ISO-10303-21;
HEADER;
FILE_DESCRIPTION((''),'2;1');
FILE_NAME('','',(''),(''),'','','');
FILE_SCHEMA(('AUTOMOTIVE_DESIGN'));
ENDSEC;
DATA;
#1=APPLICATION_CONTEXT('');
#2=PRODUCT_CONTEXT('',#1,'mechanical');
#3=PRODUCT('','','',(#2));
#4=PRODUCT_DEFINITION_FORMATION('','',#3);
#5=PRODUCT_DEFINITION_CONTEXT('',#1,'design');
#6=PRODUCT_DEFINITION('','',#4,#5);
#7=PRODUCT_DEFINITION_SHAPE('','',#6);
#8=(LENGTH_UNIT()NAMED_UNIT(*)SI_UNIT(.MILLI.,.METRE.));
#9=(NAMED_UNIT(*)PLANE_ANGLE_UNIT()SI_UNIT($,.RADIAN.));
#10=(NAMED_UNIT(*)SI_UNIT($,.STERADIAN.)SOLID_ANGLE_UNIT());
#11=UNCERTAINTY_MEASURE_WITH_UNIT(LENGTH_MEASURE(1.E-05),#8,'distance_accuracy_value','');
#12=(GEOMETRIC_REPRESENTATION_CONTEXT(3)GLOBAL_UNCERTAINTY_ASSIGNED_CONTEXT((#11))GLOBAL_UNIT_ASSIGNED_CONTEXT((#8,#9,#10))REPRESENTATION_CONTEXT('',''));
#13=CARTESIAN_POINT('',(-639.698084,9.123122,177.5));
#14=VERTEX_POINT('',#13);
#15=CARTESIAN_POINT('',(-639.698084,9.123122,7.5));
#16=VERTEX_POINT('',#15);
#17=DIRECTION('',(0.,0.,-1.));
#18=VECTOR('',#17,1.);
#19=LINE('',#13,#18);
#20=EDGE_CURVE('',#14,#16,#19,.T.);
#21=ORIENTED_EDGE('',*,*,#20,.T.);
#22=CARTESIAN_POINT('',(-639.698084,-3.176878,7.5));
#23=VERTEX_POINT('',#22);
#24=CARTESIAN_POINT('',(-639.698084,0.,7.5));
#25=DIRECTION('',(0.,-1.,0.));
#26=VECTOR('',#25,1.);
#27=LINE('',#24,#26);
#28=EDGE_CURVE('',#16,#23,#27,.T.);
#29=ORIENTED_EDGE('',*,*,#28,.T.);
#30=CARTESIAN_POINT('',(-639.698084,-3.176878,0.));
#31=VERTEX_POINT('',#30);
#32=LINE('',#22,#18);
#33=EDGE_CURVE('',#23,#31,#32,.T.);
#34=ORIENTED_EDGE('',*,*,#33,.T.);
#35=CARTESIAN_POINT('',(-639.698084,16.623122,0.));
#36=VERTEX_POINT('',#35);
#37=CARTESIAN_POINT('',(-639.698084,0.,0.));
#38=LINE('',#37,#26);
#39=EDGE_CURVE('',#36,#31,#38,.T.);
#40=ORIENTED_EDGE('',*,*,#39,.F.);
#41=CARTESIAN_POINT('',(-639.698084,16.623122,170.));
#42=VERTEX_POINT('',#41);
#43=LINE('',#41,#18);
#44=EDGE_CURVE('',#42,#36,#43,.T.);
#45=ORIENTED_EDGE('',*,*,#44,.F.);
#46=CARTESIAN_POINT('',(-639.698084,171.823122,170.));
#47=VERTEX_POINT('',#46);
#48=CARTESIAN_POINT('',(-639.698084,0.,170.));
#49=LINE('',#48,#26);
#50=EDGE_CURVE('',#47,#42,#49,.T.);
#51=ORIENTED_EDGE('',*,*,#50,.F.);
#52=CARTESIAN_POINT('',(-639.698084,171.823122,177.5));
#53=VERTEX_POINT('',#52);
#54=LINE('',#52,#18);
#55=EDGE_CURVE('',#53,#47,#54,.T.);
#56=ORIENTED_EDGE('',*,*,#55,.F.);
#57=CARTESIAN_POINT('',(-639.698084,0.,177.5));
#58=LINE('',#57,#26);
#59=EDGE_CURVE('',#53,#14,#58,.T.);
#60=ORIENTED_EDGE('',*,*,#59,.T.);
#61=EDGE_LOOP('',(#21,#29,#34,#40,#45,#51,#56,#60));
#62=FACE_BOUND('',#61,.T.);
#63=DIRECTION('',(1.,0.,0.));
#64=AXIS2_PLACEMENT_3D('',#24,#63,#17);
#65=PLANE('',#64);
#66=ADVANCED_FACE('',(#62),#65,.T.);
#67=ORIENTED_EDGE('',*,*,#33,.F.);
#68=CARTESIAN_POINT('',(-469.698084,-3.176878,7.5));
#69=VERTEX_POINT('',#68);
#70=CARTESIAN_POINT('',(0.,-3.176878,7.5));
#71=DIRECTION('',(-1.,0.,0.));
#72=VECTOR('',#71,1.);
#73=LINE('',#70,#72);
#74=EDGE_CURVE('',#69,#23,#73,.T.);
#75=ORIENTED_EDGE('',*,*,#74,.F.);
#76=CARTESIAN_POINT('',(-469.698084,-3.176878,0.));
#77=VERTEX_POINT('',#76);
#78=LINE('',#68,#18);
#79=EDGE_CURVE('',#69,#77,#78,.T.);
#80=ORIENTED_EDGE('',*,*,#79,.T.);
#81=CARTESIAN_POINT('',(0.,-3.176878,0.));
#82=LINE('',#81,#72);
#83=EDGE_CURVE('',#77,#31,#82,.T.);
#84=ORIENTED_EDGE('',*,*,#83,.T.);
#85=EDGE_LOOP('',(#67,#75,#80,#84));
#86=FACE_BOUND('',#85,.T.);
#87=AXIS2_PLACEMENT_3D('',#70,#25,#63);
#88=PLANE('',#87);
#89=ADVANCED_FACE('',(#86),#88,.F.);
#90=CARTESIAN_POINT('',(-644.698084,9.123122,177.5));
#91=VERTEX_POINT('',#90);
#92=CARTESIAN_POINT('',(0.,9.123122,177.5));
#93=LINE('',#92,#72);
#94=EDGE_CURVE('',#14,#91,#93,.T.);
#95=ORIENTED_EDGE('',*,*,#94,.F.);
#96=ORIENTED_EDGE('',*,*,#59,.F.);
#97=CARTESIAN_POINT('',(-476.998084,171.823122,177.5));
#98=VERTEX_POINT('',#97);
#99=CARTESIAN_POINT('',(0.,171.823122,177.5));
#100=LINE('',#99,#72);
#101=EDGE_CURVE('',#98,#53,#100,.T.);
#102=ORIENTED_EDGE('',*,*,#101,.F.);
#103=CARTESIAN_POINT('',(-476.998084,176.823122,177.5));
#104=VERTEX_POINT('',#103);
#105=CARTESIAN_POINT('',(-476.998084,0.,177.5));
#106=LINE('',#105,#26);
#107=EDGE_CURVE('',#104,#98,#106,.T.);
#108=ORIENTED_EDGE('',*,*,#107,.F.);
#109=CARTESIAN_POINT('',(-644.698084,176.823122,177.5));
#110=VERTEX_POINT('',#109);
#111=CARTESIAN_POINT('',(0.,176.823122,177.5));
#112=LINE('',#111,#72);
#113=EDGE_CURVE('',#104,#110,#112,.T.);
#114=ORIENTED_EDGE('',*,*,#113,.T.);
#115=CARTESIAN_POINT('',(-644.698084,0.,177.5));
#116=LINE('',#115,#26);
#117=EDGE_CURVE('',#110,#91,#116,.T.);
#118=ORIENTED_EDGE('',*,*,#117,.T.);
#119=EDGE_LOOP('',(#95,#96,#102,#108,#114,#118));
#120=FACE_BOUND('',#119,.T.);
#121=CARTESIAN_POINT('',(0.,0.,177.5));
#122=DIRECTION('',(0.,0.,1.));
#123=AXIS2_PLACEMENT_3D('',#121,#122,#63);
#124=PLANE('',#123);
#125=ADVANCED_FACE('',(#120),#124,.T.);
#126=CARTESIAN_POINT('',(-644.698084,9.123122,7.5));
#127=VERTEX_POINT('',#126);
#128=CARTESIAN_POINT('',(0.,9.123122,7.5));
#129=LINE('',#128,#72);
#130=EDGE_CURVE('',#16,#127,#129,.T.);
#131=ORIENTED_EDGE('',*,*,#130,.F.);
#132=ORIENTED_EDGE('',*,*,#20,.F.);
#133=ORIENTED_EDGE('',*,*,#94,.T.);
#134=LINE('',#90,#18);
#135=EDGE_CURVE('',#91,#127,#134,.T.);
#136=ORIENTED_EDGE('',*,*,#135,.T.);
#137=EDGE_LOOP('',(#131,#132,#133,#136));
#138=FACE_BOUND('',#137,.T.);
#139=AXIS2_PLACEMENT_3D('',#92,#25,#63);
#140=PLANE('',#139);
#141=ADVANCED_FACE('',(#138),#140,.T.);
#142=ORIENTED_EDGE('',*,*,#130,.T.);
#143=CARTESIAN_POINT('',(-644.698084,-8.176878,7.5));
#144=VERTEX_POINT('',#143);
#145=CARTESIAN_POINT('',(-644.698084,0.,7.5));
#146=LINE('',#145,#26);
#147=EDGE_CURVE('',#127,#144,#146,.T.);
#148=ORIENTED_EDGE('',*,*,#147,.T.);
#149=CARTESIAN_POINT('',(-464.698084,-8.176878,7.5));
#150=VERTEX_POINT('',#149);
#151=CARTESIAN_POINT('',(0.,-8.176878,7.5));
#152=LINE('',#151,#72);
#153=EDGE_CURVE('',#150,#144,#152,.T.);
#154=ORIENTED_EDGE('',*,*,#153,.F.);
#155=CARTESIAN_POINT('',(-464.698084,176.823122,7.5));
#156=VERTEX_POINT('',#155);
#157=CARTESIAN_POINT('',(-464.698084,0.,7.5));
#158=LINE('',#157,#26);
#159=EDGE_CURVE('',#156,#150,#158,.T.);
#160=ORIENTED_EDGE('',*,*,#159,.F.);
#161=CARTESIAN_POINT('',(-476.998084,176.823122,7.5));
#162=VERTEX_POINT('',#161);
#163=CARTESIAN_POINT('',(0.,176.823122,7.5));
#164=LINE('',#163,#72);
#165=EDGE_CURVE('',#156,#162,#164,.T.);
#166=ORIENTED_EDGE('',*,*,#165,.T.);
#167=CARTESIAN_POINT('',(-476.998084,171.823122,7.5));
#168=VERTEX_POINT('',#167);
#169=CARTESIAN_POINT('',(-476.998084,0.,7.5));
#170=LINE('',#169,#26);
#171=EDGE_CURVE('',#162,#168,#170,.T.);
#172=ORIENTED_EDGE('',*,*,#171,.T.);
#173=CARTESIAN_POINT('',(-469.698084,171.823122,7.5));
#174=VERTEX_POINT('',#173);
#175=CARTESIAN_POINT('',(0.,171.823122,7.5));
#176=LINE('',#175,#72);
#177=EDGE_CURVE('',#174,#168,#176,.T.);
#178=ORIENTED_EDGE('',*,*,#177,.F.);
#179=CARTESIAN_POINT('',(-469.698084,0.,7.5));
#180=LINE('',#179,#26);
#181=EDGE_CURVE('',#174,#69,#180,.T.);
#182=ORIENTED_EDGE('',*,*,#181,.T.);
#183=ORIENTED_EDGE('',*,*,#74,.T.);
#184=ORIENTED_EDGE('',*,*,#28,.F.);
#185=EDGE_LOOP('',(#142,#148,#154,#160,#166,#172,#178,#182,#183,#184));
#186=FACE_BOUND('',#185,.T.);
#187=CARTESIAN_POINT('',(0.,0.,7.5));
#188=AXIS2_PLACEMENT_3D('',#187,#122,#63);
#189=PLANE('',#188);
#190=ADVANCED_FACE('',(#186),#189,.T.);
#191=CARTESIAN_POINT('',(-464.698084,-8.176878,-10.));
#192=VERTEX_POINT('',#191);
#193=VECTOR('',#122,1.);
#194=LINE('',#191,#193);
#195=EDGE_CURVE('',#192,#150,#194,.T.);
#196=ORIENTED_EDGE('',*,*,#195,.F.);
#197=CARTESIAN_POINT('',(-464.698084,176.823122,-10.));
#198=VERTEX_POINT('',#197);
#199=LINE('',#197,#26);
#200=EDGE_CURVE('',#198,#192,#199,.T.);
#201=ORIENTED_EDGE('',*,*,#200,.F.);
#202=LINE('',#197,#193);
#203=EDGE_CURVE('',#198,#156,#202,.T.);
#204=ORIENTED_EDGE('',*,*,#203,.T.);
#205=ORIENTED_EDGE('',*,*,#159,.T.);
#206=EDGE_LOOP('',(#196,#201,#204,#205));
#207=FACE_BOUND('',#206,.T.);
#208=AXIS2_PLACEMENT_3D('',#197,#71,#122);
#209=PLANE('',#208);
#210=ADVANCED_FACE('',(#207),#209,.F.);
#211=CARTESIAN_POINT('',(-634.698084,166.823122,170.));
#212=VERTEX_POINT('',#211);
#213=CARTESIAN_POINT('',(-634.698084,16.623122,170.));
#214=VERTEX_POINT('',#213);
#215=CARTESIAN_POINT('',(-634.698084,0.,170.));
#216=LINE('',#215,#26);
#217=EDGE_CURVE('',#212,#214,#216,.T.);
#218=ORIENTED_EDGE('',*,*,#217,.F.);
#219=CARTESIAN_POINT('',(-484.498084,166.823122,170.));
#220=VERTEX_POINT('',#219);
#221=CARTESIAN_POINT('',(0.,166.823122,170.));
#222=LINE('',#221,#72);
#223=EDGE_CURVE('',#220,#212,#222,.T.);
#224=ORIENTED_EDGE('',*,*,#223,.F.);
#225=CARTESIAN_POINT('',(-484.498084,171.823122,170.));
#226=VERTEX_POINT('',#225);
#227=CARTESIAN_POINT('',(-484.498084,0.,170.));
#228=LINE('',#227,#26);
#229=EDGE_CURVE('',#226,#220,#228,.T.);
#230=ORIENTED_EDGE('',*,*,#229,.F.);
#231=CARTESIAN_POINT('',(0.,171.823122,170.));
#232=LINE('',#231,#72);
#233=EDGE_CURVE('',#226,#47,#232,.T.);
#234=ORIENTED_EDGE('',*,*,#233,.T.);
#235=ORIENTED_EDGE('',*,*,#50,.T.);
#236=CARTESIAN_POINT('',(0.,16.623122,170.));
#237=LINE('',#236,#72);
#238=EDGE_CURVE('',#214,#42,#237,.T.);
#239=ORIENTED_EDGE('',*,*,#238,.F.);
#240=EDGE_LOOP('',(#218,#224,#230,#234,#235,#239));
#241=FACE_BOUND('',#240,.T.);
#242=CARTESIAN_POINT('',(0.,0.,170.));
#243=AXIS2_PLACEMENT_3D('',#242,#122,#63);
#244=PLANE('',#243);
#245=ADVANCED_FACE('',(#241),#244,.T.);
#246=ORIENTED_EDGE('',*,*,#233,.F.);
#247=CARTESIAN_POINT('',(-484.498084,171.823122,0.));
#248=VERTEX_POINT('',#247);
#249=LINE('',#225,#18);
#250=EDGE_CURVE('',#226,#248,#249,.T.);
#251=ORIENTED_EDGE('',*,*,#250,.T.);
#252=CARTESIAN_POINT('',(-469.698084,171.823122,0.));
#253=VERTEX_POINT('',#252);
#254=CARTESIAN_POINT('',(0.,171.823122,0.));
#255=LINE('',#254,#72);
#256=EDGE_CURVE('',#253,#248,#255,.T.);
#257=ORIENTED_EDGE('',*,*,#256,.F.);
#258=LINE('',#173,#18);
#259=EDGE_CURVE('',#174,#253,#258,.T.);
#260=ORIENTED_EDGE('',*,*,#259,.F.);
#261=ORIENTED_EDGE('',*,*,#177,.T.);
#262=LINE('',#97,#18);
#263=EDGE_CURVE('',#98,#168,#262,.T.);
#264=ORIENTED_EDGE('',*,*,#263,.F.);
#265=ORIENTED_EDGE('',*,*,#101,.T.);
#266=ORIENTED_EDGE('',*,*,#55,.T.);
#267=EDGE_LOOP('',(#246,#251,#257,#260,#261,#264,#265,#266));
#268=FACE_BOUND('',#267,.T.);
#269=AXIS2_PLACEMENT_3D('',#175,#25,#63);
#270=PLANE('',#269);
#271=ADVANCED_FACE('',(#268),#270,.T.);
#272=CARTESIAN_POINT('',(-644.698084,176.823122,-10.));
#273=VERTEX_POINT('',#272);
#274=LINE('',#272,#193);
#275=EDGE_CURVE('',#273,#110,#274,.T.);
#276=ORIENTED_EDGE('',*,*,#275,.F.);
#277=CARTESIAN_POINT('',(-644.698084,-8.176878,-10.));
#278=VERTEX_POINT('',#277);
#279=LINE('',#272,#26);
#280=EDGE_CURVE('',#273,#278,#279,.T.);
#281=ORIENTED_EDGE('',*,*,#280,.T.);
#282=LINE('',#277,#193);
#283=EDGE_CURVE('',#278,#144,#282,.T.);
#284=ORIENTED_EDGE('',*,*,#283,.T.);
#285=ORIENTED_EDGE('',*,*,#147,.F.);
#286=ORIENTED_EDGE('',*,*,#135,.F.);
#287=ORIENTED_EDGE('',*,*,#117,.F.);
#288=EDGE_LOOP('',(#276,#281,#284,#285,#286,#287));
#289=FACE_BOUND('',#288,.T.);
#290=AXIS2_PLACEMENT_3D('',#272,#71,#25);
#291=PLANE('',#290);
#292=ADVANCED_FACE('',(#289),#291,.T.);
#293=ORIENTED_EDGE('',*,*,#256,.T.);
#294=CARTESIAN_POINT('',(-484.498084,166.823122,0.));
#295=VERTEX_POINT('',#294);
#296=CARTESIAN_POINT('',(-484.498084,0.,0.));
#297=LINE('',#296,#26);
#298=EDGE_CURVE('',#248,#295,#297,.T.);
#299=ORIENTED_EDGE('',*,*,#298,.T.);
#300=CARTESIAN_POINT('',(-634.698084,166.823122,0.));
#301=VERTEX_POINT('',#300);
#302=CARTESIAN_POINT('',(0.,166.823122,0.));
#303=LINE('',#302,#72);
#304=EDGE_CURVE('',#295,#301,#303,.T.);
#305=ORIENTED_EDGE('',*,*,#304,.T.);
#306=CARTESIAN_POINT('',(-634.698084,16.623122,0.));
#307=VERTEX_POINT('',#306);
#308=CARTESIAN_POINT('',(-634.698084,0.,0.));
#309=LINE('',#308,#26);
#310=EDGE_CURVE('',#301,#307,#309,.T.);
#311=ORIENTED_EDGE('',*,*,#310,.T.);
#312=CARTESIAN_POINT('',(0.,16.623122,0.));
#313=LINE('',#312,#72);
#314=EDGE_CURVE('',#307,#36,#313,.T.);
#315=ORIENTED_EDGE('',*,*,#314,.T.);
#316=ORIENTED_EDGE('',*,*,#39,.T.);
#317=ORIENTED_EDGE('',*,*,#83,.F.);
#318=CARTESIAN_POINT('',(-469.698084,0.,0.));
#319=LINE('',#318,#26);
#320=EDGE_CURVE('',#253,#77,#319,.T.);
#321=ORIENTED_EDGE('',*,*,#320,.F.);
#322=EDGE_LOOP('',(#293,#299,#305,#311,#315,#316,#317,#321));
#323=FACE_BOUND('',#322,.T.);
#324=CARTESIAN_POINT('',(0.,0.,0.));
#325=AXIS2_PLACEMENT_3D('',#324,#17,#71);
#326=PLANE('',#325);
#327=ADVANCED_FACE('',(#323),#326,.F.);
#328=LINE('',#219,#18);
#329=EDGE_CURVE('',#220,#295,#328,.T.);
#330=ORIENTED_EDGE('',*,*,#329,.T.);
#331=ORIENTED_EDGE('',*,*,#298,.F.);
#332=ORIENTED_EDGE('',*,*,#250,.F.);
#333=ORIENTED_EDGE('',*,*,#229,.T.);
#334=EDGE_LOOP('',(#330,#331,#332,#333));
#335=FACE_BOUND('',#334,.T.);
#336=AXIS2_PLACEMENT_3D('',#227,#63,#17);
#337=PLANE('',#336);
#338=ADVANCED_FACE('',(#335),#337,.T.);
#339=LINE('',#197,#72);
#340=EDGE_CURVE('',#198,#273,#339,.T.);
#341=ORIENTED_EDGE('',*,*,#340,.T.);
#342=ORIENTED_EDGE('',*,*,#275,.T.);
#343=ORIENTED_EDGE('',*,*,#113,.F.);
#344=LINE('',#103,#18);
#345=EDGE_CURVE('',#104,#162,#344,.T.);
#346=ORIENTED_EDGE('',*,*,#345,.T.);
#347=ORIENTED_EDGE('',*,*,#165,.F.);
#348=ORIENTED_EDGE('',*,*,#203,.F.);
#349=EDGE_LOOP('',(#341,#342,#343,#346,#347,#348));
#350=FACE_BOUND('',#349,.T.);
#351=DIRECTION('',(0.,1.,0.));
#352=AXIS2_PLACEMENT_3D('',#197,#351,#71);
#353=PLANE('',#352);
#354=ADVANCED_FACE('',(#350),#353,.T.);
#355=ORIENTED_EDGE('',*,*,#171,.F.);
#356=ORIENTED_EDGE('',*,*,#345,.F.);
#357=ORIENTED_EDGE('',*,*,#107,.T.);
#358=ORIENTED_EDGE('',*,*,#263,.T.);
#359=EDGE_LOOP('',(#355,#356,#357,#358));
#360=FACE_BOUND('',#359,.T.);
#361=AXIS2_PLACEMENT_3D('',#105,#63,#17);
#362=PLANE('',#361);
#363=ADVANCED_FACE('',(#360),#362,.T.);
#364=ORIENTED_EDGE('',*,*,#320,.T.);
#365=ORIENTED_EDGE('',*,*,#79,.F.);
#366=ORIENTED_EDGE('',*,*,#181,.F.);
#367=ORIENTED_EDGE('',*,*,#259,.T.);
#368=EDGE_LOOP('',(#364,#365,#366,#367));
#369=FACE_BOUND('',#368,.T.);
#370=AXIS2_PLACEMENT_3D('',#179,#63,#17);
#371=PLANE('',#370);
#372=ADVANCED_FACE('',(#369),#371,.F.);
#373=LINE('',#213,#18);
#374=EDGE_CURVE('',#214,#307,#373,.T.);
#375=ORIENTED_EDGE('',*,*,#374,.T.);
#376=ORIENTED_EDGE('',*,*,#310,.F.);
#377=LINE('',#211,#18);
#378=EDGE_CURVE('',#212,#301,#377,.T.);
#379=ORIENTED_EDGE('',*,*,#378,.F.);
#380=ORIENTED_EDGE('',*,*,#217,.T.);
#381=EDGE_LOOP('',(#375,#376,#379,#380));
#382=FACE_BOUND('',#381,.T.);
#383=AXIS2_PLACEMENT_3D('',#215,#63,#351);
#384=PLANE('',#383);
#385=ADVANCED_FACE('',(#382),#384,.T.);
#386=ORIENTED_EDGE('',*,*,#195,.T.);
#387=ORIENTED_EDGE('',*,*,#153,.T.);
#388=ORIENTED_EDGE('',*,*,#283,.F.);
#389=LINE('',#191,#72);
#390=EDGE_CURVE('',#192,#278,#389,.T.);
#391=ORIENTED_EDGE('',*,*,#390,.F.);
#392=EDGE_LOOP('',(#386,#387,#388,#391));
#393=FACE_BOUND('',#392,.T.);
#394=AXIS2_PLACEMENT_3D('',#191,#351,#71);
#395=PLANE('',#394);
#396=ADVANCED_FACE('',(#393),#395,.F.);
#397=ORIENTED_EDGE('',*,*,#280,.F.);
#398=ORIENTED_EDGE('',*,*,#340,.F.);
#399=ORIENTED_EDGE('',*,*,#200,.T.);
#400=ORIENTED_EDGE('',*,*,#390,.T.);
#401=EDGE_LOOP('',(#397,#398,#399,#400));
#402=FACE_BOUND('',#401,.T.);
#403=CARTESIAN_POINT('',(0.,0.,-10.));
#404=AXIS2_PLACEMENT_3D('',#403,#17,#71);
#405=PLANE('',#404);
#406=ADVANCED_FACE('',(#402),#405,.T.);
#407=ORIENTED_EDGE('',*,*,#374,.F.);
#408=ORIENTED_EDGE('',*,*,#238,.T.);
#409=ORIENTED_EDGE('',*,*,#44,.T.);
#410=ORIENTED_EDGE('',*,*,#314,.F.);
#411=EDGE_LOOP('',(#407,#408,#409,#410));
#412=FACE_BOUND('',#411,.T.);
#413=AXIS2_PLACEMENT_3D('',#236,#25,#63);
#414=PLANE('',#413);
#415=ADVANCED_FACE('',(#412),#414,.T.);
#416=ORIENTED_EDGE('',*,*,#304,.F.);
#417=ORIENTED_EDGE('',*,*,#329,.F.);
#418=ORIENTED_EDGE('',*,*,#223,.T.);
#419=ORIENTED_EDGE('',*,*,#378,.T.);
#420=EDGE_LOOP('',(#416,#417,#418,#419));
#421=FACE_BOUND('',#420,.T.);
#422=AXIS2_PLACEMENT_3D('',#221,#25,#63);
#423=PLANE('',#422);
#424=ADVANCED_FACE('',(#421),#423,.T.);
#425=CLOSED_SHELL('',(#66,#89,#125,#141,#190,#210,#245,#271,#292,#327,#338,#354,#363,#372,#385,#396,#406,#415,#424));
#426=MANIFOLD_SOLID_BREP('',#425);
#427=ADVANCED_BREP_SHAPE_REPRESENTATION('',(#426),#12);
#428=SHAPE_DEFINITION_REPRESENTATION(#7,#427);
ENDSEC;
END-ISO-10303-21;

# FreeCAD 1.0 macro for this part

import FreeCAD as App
import Part
import Sketcher

V = App.Vector


def add_polygon(sketch, points):
    """Adds a closed chain of lines whose ends are joined by coincident constraints."""
    first, n = sketch.GeometryCount, len(points)
    for a, b in zip(points, points[1:] + points[:1]):
        sketch.addGeometry(Part.LineSegment(App.Vector(*a, 0), App.Vector(*b, 0)), False)
    for i in range(n):
        sketch.addConstraint(Sketcher.Constraint("Coincident", first + i, 2, first + (i + 1) % n, 1))

doc = App.newDocument("Part")
body = doc.addObject("PartDesign::Body", "Body")

# Sketch on XY plane
sketch1 = body.newObject("Sketcher::SketchObject", "Sketch")
sketch1.AttachmentSupport = (doc.getObject("XY_Plane"), [""])
sketch1.MapMode = "FlatFace"
add_polygon(sketch1, [(-644.698084, 176.823122), (-644.698084, -8.176878), (-464.698084, -8.176878), (-464.698084, 176.823122)])  # lines 0-3
sketch1.addConstraint([
    Sketcher.Constraint("Vertical", 0),
    Sketcher.Constraint("Horizontal", 1),
    Sketcher.Constraint("Vertical", 2),
    Sketcher.Constraint("Horizontal", 3),
    Sketcher.Constraint("DistanceX", 1, 1, 1, 2, 180.0),
    Sketcher.Constraint("DistanceY", 0, 2, 0, 1, 185.0),
    Sketcher.Constraint("DistanceY", 0, 2, -1, 1, 8.176878),
    Sketcher.Constraint("DistanceX", 0, 2, -1, 1, 644.698084),
])
pad1 = body.newObject("PartDesign::Pad", "Pad")
pad1.Profile = sketch1
pad1.Length = 10
pad1.Reversed = True

# Sketch on XY plane
sketch2 = body.newObject("Sketcher::SketchObject", "Sketch001")
sketch2.AttachmentSupport = (doc.getObject("XY_Plane"), [""])
sketch2.MapMode = "FlatFace"
add_polygon(sketch2, [(-464.698084, 176.823122), (-476.998084, 176.823122), (-476.998084, 171.823122), (-469.698084, 171.823122), (-469.698084, -3.176878), (-639.698084, -3.176878), (-639.698084, 9.123122), (-644.698084, 9.123122), (-644.698084, -8.176878), (-464.698084, -8.176878)])  # lines 0-9
sketch2.addConstraint([
    Sketcher.Constraint("Horizontal", 0),
    Sketcher.Constraint("Vertical", 1),
    Sketcher.Constraint("Horizontal", 2),
    Sketcher.Constraint("Vertical", 3),
    Sketcher.Constraint("Horizontal", 4),
    Sketcher.Constraint("Vertical", 5),
    Sketcher.Constraint("Horizontal", 6),
    Sketcher.Constraint("Vertical", 7),
    Sketcher.Constraint("Horizontal", 8),
    Sketcher.Constraint("Vertical", 9),
    Sketcher.Constraint("Equal", 6, 1),
    Sketcher.Constraint("Equal", 0, 5),
    Sketcher.Constraint("DistanceX", 4, 2, 4, 1, 170.0),
    Sketcher.Constraint("DistanceX", 6, 2, 6, 1, 5.0),
    Sketcher.Constraint("DistanceX", 8, 1, 8, 2, 180.0),
    Sketcher.Constraint("DistanceY", 3, 2, 3, 1, 175.0),
    Sketcher.Constraint("DistanceY", 9, 1, 9, 2, 185.0),
    Sketcher.Constraint("DistanceX", 0, 2, 0, 1, 12.3),
    Sketcher.Constraint("DistanceY", -1, 1, 0, 2, 176.823122),
    Sketcher.Constraint("DistanceX", 0, 2, -1, 1, 476.998084),
])
pad2 = body.newObject("PartDesign::Pad", "Pad001")
pad2.Profile = sketch2
pad2.Length = 7.5

# Sketch on XY plane
sketch3 = body.newObject("Sketcher::SketchObject", "Sketch002")
sketch3.AttachmentSupport = (doc.getObject("XY_Plane"), [""])
sketch3.MapMode = "FlatFace"
add_polygon(sketch3, [(-484.498084, 166.823122), (-484.498084, 171.823122), (-639.698084, 171.823122), (-639.698084, 16.623122), (-634.698084, 16.623122), (-634.698084, 166.823122)])  # lines 0-5
sketch3.addConstraint([
    Sketcher.Constraint("Vertical", 0),
    Sketcher.Constraint("Horizontal", 1),
    Sketcher.Constraint("Vertical", 2),
    Sketcher.Constraint("Horizontal", 3),
    Sketcher.Constraint("Vertical", 4),
    Sketcher.Constraint("Horizontal", 5),
    Sketcher.Constraint("Equal", 3, 0),
    Sketcher.Constraint("Equal", 1, 2),
    Sketcher.Constraint("DistanceX", 3, 1, 3, 2, 5.0),
    Sketcher.Constraint("DistanceX", 1, 2, 1, 1, 155.2),
    Sketcher.Constraint("DistanceY", -1, 1, 0, 2, 171.823122),
    Sketcher.Constraint("DistanceX", 0, 2, -1, 1, 484.498084),
])
pad3 = body.newObject("PartDesign::Pad", "Pad002")
pad3.Profile = sketch3
pad3.Length = 170

# Sketch on XY plane
sketch4 = body.newObject("Sketcher::SketchObject", "Sketch003")
sketch4.AttachmentSupport = (doc.getObject("XY_Plane"), [""])
sketch4.MapMode = "FlatFace"
add_polygon(sketch4, [(-476.998084, 171.823122), (-476.998084, 176.823122), (-644.698084, 176.823122), (-644.698084, 9.123122), (-639.698084, 9.123122), (-639.698084, 171.823122)])  # lines 0-5
sketch4.addConstraint([
    Sketcher.Constraint("Vertical", 0),
    Sketcher.Constraint("Horizontal", 1),
    Sketcher.Constraint("Vertical", 2),
    Sketcher.Constraint("Horizontal", 3),
    Sketcher.Constraint("Vertical", 4),
    Sketcher.Constraint("Horizontal", 5),
    Sketcher.Constraint("Equal", 3, 0),
    Sketcher.Constraint("Equal", 1, 2),
    Sketcher.Constraint("DistanceX", 3, 1, 3, 2, 5.0),
    Sketcher.Constraint("DistanceX", 1, 2, 1, 1, 167.7),
    Sketcher.Constraint("DistanceY", -1, 1, 0, 2, 176.823122),
    Sketcher.Constraint("DistanceX", 0, 2, -1, 1, 476.998084),
])
pad4 = body.newObject("PartDesign::Pad", "Pad003")
pad4.Profile = sketch4
pad4.Length = 177.5

doc.recompute()
